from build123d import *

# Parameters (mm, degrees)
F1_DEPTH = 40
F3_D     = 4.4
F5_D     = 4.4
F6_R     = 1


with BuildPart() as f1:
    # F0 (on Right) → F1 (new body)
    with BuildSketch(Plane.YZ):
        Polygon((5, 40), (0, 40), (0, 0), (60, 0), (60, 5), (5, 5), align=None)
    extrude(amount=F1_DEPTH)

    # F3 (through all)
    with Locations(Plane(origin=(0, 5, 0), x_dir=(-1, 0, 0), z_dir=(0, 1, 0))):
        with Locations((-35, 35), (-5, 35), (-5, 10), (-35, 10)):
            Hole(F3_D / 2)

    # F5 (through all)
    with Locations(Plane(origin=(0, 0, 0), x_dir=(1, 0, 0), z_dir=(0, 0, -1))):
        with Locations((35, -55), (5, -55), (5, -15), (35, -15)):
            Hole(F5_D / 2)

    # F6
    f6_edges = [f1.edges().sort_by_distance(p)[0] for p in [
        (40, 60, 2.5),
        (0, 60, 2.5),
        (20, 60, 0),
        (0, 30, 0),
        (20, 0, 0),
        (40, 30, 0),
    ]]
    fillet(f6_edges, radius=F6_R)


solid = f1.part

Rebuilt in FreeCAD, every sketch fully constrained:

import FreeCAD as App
import Part
import Sketcher


def edges_at(feature, points):
    """Names of the edges that pass closest to the given points."""
    edges = feature.Shape.Edges
    near = lambda p: min(range(len(edges)), key=lambda i: edges[i].distToShape(Part.Vertex(*p))[0])
    return sorted({f"Edge{near(p) + 1}" for p in points})

doc = App.newDocument("Part")
params = doc.addObject("Spreadsheet::Sheet", "Params")
for row, (alias, value) in enumerate([
    ("sketch1_width", "5 mm"),
    ("sketch1_width2", "60 mm"),
    ("sketch1_height", "40 mm"),
    ("pad1_length", "40 mm"),
    ("sketch2_diameter", "4.4 mm"),
    ("hole_diameter", "4.4 mm"),
    ("sketch3_diameter", "4.4 mm"),
    ("hole2_diameter", "4.4 mm"),
    ("fillet_radius", "1 mm"),
], start=1):
    params.set(f"A{row}", alias)
    params.set(f"B{row}", "=" + value)
    params.setAlias(f"B{row}", alias)

body = doc.addObject("PartDesign::Body", "Body")

# Sketch on YZ plane
sketch1 = body.newObject("Sketcher::SketchObject", "Sketch")
sketch1.AttachmentSupport = (doc.getObject("YZ_Plane"), [""])
sketch1.MapMode = "FlatFace"
sketch1.addGeometry(Part.LineSegment(App.Vector(5, 40, 0), App.Vector(0, 40, 0)), False)
sketch1.addGeometry(Part.LineSegment(App.Vector(0, 40, 0), App.Vector(0, 0, 0)), False)
sketch1.addGeometry(Part.LineSegment(App.Vector(0, 0, 0), App.Vector(60, 0, 0)), False)
sketch1.addGeometry(Part.LineSegment(App.Vector(60, 0, 0), App.Vector(60, 5, 0)), False)
sketch1.addGeometry(Part.LineSegment(App.Vector(60, 5, 0), App.Vector(5, 5, 0)), False)
sketch1.addGeometry(Part.LineSegment(App.Vector(5, 5, 0), App.Vector(5, 40, 0)), False)
sketch1.addConstraint(Sketcher.Constraint("Coincident", 0, 2, 1, 1))
sketch1.addConstraint(Sketcher.Constraint("Coincident", 1, 2, 2, 1))
sketch1.addConstraint(Sketcher.Constraint("Coincident", 2, 2, 3, 1))
sketch1.addConstraint(Sketcher.Constraint("Coincident", 3, 2, 4, 1))
sketch1.addConstraint(Sketcher.Constraint("Coincident", 4, 2, 5, 1))
sketch1.addConstraint(Sketcher.Constraint("Coincident", 5, 2, 0, 1))
sketch1.addConstraint(Sketcher.Constraint("Horizontal", 0))
sketch1.addConstraint(Sketcher.Constraint("Vertical", 1))
sketch1.addConstraint(Sketcher.Constraint("Horizontal", 2))
sketch1.addConstraint(Sketcher.Constraint("Vertical", 3))
sketch1.addConstraint(Sketcher.Constraint("Horizontal", 4))
sketch1.addConstraint(Sketcher.Constraint("Vertical", 5))
sketch1.addConstraint(Sketcher.Constraint("Coincident", 1, 2, -1, 1))
sketch1.addConstraint(Sketcher.Constraint("Equal", 0, 3))
sketch1.addConstraint(Sketcher.Constraint("DistanceX", 0, 2, 0, 1, 5.0))
sketch1.addConstraint(Sketcher.Constraint("DistanceX", 2, 1, 2, 2, 60.0))
sketch1.addConstraint(Sketcher.Constraint("DistanceY", 1, 2, 1, 1, 40.0))
sketch1.setExpression("Constraints[14]", "Params.sketch1_width")
sketch1.setExpression("Constraints[15]", "Params.sketch1_width2")
sketch1.setExpression("Constraints[16]", "Params.sketch1_height")
pad1 = body.newObject("PartDesign::Pad", "Pad")
pad1.Profile = sketch1
pad1.setExpression("Length", "Params.pad1_length")

# Sketch on XZ plane
sketch2 = body.newObject("Sketcher::SketchObject", "Sketch001")
sketch2.AttachmentSupport = (doc.getObject("XZ_Plane"), [""])
sketch2.MapMode = "FlatFace"
sketch2.AttachmentOffset = App.Placement(App.Vector(0, 0, -5), App.Rotation())
sketch2.addGeometry(Part.Circle(App.Vector(35, 35, 0), App.Vector(0, 0, 1), 2.2), False)
sketch2.addGeometry(Part.Circle(App.Vector(5, 35, 0), App.Vector(0, 0, 1), 2.2), False)
sketch2.addGeometry(Part.Circle(App.Vector(5, 10, 0), App.Vector(0, 0, 1), 2.2), False)
sketch2.addGeometry(Part.Circle(App.Vector(35, 10, 0), App.Vector(0, 0, 1), 2.2), False)
sketch2.addConstraint(Sketcher.Constraint("Equal", 0, 1))
sketch2.addConstraint(Sketcher.Constraint("Equal", 1, 2))
sketch2.addConstraint(Sketcher.Constraint("Equal", 2, 3))
sketch2.addConstraint(Sketcher.Constraint("Horizontal", 0, 3, 1, 3))
sketch2.addConstraint(Sketcher.Constraint("Horizontal", 2, 3, 3, 3))
sketch2.addConstraint(Sketcher.Constraint("Vertical", 1, 3, 2, 3))
sketch2.addConstraint(Sketcher.Constraint("Vertical", 0, 3, 3, 3))
sketch2.addConstraint(Sketcher.Constraint("Diameter", 0, 4.4))
sketch2.addConstraint(Sketcher.Constraint("DistanceX", -1, 1, 0, 3, 35.0))
sketch2.addConstraint(Sketcher.Constraint("DistanceY", -1, 1, 0, 3, 35.0))
sketch2.addConstraint(Sketcher.Constraint("DistanceX", -1, 1, 1, 3, 5.0))
sketch2.addConstraint(Sketcher.Constraint("DistanceY", -1, 1, 2, 3, 10.0))
sketch2.setExpression("Constraints[7]", "Params.sketch2_diameter")
doc.recompute()
hole = body.newObject("PartDesign::Hole", "Hole")
hole.Profile = sketch2
hole.ThreadType = "None"
hole.setExpression("Diameter", "Params.hole_diameter")
hole.DepthType = "ThroughAll"
hole.Reversed = True

# Sketch on XY plane
sketch3 = body.newObject("Sketcher::SketchObject", "Sketch002")
sketch3.AttachmentSupport = (doc.getObject("XY_Plane"), [""])
sketch3.MapMode = "FlatFace"
sketch3.addGeometry(Part.Circle(App.Vector(35, 55, 0), App.Vector(0, 0, 1), 2.2), False)
sketch3.addGeometry(Part.Circle(App.Vector(5, 55, 0), App.Vector(0, 0, 1), 2.2), False)
sketch3.addGeometry(Part.Circle(App.Vector(5, 15, 0), App.Vector(0, 0, 1), 2.2), False)
sketch3.addGeometry(Part.Circle(App.Vector(35, 15, 0), App.Vector(0, 0, 1), 2.2), False)
sketch3.addConstraint(Sketcher.Constraint("Equal", 0, 1))
sketch3.addConstraint(Sketcher.Constraint("Equal", 1, 2))
sketch3.addConstraint(Sketcher.Constraint("Equal", 2, 3))
sketch3.addConstraint(Sketcher.Constraint("Horizontal", 0, 3, 1, 3))
sketch3.addConstraint(Sketcher.Constraint("Horizontal", 2, 3, 3, 3))
sketch3.addConstraint(Sketcher.Constraint("Vertical", 1, 3, 2, 3))
sketch3.addConstraint(Sketcher.Constraint("Vertical", 0, 3, 3, 3))
sketch3.addConstraint(Sketcher.Constraint("Diameter", 0, 4.4))
sketch3.addConstraint(Sketcher.Constraint("DistanceX", -1, 1, 0, 3, 35.0))
sketch3.addConstraint(Sketcher.Constraint("DistanceY", -1, 1, 0, 3, 55.0))
sketch3.addConstraint(Sketcher.Constraint("DistanceX", -1, 1, 1, 3, 5.0))
sketch3.addConstraint(Sketcher.Constraint("DistanceY", -1, 1, 2, 3, 15.0))
sketch3.setExpression("Constraints[7]", "Params.sketch3_diameter")
doc.recompute()
hole2 = body.newObject("PartDesign::Hole", "Hole001")
hole2.Profile = sketch3
hole2.ThreadType = "None"
hole2.setExpression("Diameter", "Params.hole2_diameter")
hole2.DepthType = "ThroughAll"
hole2.Reversed = True
doc.recompute()

fillet = body.newObject("PartDesign::Fillet", "Fillet")
fillet.Base = (hole2, edges_at(hole2, [
    (40, 60, 2.5),
    (0, 60, 2.5),
    (20, 60, 0),
    (0, 30, 0),
    (20, 0, 0),
    (40, 30, 0),
]))
fillet.setExpression("Radius", "Params.fillet_radius")

doc.recompute()
